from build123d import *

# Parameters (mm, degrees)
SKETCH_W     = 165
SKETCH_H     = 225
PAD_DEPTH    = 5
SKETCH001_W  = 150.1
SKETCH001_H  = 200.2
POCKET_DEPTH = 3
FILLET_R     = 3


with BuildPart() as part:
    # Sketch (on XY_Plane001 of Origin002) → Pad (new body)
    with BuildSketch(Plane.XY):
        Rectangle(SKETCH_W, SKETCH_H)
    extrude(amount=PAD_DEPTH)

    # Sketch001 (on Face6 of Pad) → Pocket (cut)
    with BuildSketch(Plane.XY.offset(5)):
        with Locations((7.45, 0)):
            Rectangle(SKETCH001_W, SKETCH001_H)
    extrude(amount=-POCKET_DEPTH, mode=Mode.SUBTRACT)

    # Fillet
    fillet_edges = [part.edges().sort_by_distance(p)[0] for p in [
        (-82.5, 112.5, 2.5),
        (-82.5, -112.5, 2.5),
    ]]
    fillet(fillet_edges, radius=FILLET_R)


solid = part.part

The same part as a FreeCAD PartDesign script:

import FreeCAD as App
import Part
import Sketcher

V = App.Vector


def edges_at(feature, points):
    """Names of the edges that pass closest to the given points."""
    edges = feature.Shape.Edges
    near = lambda p: min(range(len(edges)), key=lambda i: edges[i].distToShape(Part.Vertex(*p))[0])
    return sorted({f"Edge{near(p) + 1}" for p in points})

doc = App.newDocument("Part")
body = doc.addObject("PartDesign::Body", "Body")

# Sketch on XY plane
sketch1 = body.newObject("Sketcher::SketchObject", "Sketch")
sketch1.AttachmentSupport = (doc.getObject("XY_Plane"), [""])
sketch1.MapMode = "FlatFace"
sketch1.addGeometry([
    Part.LineSegment(V(-82.5, 112.5, 0), V(-82.5, -112.5, 0)),
    Part.LineSegment(V(-82.5, -112.5, 0), V(82.5, -112.5, 0)),
    Part.LineSegment(V(82.5, -112.5, 0), V(82.5, 112.5, 0)),
    Part.LineSegment(V(82.5, 112.5, 0), V(-82.5, 112.5, 0)),
], False)
sketch1.addConstraint([
    Sketcher.Constraint("Coincident", 0, 2, 1, 1),
    Sketcher.Constraint("Coincident", 1, 2, 2, 1),
    Sketcher.Constraint("Coincident", 2, 2, 3, 1),
    Sketcher.Constraint("Coincident", 3, 2, 0, 1),
    Sketcher.Constraint("Vertical", 0),
    Sketcher.Constraint("Horizontal", 1),
    Sketcher.Constraint("Vertical", 2),
    Sketcher.Constraint("Horizontal", 3),
    Sketcher.Constraint("Symmetric", 0, 2, 2, 2, -1, 1),
    Sketcher.Constraint("DistanceX", 1, 1, 1, 2, 165.0),
    Sketcher.Constraint("DistanceY", 0, 2, 0, 1, 225.0),
])
pad1 = body.newObject("PartDesign::Pad", "Pad")
pad1.Profile = sketch1
pad1.Length = 5

# Sketch on XY plane
sketch2 = body.newObject("Sketcher::SketchObject", "Sketch001")
sketch2.AttachmentSupport = (doc.getObject("XY_Plane"), [""])
sketch2.MapMode = "FlatFace"
sketch2.AttachmentOffset = App.Placement(V(0, 0, 5), App.Rotation())
sketch2.addGeometry([
    Part.LineSegment(V(-67.6, 100.1, 0), V(-67.6, -100.1, 0)),
    Part.LineSegment(V(-67.6, -100.1, 0), V(82.5, -100.1, 0)),
    Part.LineSegment(V(82.5, -100.1, 0), V(82.5, 100.1, 0)),
    Part.LineSegment(V(82.5, 100.1, 0), V(-67.6, 100.1, 0)),
], False)
sketch2.addConstraint([
    Sketcher.Constraint("Coincident", 0, 2, 1, 1),
    Sketcher.Constraint("Coincident", 1, 2, 2, 1),
    Sketcher.Constraint("Coincident", 2, 2, 3, 1),
    Sketcher.Constraint("Coincident", 3, 2, 0, 1),
    Sketcher.Constraint("Vertical", 0),
    Sketcher.Constraint("Horizontal", 1),
    Sketcher.Constraint("Vertical", 2),
    Sketcher.Constraint("Horizontal", 3),
    Sketcher.Constraint("DistanceX", 1, 1, 1, 2, 150.1),
    Sketcher.Constraint("DistanceY", 0, 2, 0, 1, 200.2),
    Sketcher.Constraint("DistanceX", 0, 2, -1, 1, 67.6),
    Sketcher.Constraint("DistanceY", 0, 2, -1, 1, 100.1),
])
pocket1 = body.newObject("PartDesign::Pocket", "Pocket")
pocket1.Profile = sketch2
pocket1.Length = 3
doc.recompute()

fillet = body.newObject("PartDesign::Fillet", "Fillet")
fillet.Base = (pocket1, edges_at(pocket1, [(-82.5, 112.5, 2.5), (-82.5, -112.5, 2.5)]))
fillet.Radius = 3

doc.recompute()
